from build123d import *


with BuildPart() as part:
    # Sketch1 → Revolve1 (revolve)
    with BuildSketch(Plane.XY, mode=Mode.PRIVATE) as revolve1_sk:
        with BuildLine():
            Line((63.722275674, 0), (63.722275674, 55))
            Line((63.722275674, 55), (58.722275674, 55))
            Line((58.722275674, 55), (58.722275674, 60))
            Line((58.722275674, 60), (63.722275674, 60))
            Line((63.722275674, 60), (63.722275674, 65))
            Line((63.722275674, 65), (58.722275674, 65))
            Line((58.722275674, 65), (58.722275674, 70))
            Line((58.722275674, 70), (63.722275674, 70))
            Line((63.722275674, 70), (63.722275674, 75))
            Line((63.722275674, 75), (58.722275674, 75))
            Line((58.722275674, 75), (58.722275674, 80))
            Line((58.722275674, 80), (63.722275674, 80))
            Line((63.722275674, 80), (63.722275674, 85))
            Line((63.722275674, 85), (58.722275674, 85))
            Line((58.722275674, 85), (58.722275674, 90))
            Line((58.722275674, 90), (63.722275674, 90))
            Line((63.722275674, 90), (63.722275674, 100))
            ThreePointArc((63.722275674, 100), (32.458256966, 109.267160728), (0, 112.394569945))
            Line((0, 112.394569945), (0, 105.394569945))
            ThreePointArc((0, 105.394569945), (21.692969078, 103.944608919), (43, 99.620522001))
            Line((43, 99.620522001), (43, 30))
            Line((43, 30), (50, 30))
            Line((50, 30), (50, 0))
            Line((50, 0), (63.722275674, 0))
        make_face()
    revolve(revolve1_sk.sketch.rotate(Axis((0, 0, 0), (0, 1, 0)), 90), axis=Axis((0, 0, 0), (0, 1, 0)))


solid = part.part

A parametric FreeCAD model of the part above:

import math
import FreeCAD as App
import Part
import Sketcher

V = App.Vector
Q = App.Units.Quantity

doc = App.newDocument("Part")
body = doc.addObject("PartDesign::Body", "Body")

# Sketch on XY plane
sketch1 = body.newObject("Sketcher::SketchObject", "Sketch")
sketch1.AttachmentSupport = (doc.getObject("XY_Plane"), [""])
sketch1.MapMode = "FlatFace"
sketch1.addGeometry(Part.LineSegment(V(64, 0, 0), V(64, 55, 0)), False)
sketch1.addGeometry(Part.LineSegment(V(64, 55, 0), V(59, 55, 0)), False)
sketch1.addGeometry(Part.LineSegment(V(59, 55, 0), V(59, 60, 0)), False)
sketch1.addGeometry(Part.LineSegment(V(59, 60, 0), V(64, 60, 0)), False)
sketch1.addGeometry(Part.LineSegment(V(64, 60, 0), V(64, 65, 0)), False)
sketch1.addGeometry(Part.LineSegment(V(64, 65, 0), V(59, 65, 0)), False)
sketch1.addGeometry(Part.LineSegment(V(59, 65, 0), V(59, 70, 0)), False)
sketch1.addGeometry(Part.LineSegment(V(59, 70, 0), V(64, 70, 0)), False)
sketch1.addGeometry(Part.LineSegment(V(64, 70, 0), V(64, 75, 0)), False)
sketch1.addGeometry(Part.LineSegment(V(64, 75, 0), V(59, 75, 0)), False)
sketch1.addGeometry(Part.LineSegment(V(59, 75, 0), V(59, 80, 0)), False)
sketch1.addGeometry(Part.LineSegment(V(59, 80, 0), V(64, 80, 0)), False)
sketch1.addGeometry(Part.LineSegment(V(64, 80, 0), V(64, 85, 0)), False)
sketch1.addGeometry(Part.LineSegment(V(64, 85, 0), V(59, 85, 0)), False)
sketch1.addGeometry(Part.LineSegment(V(59, 85, 0), V(59, 90, 0)), False)
sketch1.addGeometry(Part.LineSegment(V(59, 90, 0), V(64, 90, 0)), False)
sketch1.addGeometry(Part.LineSegment(V(64, 90, 0), V(64, 100, 0)), False)
sketch1.addGeometry(Part.ArcOfCircle(Part.Circle(V(0, -58, 0), V(0, 0, 1), 170), math.radians(68), math.radians(90)), False)
sketch1.addGeometry(Part.LineSegment(V(0, 112, 0), V(0, 105, 0)), False)
sketch1.addGeometry(Part.ArcOfCircle(Part.Circle(V(0, -58, 0), V(0, 0, 1), 163), math.radians(74.7), math.radians(90)), False)
sketch1.addGeometry(Part.LineSegment(V(43, 100, 0), V(43, 30, 0)), False)
sketch1.addGeometry(Part.LineSegment(V(43, 30, 0), V(50, 30, 0)), False)
sketch1.addGeometry(Part.LineSegment(V(50, 30, 0), V(50, 0, 0)), False)
sketch1.addGeometry(Part.LineSegment(V(50, 0, 0), V(64, 0, 0)), False)
sketch1.addConstraint(Sketcher.Constraint("Coincident", 0, 2, 1, 1))
sketch1.addConstraint(Sketcher.Constraint("Coincident", 1, 2, 2, 1))
sketch1.addConstraint(Sketcher.Constraint("Coincident", 2, 2, 3, 1))
sketch1.addConstraint(Sketcher.Constraint("Coincident", 3, 2, 4, 1))
sketch1.addConstraint(Sketcher.Constraint("Coincident", 4, 2, 5, 1))
sketch1.addConstraint(Sketcher.Constraint("Coincident", 5, 2, 6, 1))
sketch1.addConstraint(Sketcher.Constraint("Coincident", 6, 2, 7, 1))
sketch1.addConstraint(Sketcher.Constraint("Coincident", 7, 2, 8, 1))
sketch1.addConstraint(Sketcher.Constraint("Coincident", 8, 2, 9, 1))
sketch1.addConstraint(Sketcher.Constraint("Coincident", 9, 2, 10, 1))
sketch1.addConstraint(Sketcher.Constraint("Coincident", 10, 2, 11, 1))
sketch1.addConstraint(Sketcher.Constraint("Coincident", 11, 2, 12, 1))
sketch1.addConstraint(Sketcher.Constraint("Coincident", 12, 2, 13, 1))
sketch1.addConstraint(Sketcher.Constraint("Coincident", 13, 2, 14, 1))
sketch1.addConstraint(Sketcher.Constraint("Coincident", 14, 2, 15, 1))
sketch1.addConstraint(Sketcher.Constraint("Coincident", 15, 2, 16, 1))
sketch1.addConstraint(Sketcher.Constraint("Coincident", 16, 2, 17, 1))
sketch1.addConstraint(Sketcher.Constraint("Coincident", 17, 2, 18, 1))
sketch1.addConstraint(Sketcher.Constraint("Coincident", 18, 2, 19, 2))
sketch1.addConstraint(Sketcher.Constraint("Coincident", 19, 1, 20, 1))
sketch1.addConstraint(Sketcher.Constraint("Coincident", 20, 2, 21, 1))
sketch1.addConstraint(Sketcher.Constraint("Coincident", 21, 2, 22, 1))
sketch1.addConstraint(Sketcher.Constraint("Coincident", 22, 2, 23, 1))
sketch1.addConstraint(Sketcher.Constraint("Coincident", 23, 2, 0, 1))
sketch1.addConstraint(Sketcher.Constraint("Vertical", 0))
sketch1.addConstraint(Sketcher.Constraint("Horizontal", 1))
sketch1.addConstraint(Sketcher.Constraint("Vertical", 2))
sketch1.addConstraint(Sketcher.Constraint("Horizontal", 3))
sketch1.addConstraint(Sketcher.Constraint("Vertical", 4))
sketch1.addConstraint(Sketcher.Constraint("Horizontal", 5))
sketch1.addConstraint(Sketcher.Constraint("Vertical", 6))
sketch1.addConstraint(Sketcher.Constraint("Horizontal", 7))
sketch1.addConstraint(Sketcher.Constraint("Vertical", 8))
sketch1.addConstraint(Sketcher.Constraint("Horizontal", 9))
sketch1.addConstraint(Sketcher.Constraint("Vertical", 10))
sketch1.addConstraint(Sketcher.Constraint("Horizontal", 11))
sketch1.addConstraint(Sketcher.Constraint("Vertical", 12))
sketch1.addConstraint(Sketcher.Constraint("Horizontal", 13))
sketch1.addConstraint(Sketcher.Constraint("Vertical", 14))
sketch1.addConstraint(Sketcher.Constraint("Horizontal", 15))
sketch1.addConstraint(Sketcher.Constraint("Vertical", 16))
sketch1.addConstraint(Sketcher.Constraint("Vertical", 18))
sketch1.addConstraint(Sketcher.Constraint("Vertical", 20))
sketch1.addConstraint(Sketcher.Constraint("Horizontal", 21))
sketch1.addConstraint(Sketcher.Constraint("Vertical", 22))
sketch1.addConstraint(Sketcher.Constraint("Horizontal", 23))
sketch1.addConstraint(Sketcher.Constraint("Coincident", 19, 3, 17, 3))
sketch1.addConstraint(Sketcher.Constraint("PointOnObject", 17, 3, -2))
sketch1.addConstraint(Sketcher.Constraint("PointOnObject", 17, 2, -2))
sketch1.addConstraint(Sketcher.Constraint("PointOnObject", 22, 2, -1))
sketch1.addConstraint(Sketcher.Constraint("Vertical", 0, 2, 3, 2))
sketch1.addConstraint(Sketcher.Constraint("Vertical", 2, 2, 5, 2))
sketch1.addConstraint(Sketcher.Constraint("Vertical", 4, 2, 7, 2))
sketch1.addConstraint(Sketcher.Constraint("Vertical", 6, 2, 9, 2))
sketch1.addConstraint(Sketcher.Constraint("Vertical", 8, 2, 11, 2))
sketch1.addConstraint(Sketcher.Constraint("Vertical", 10, 2, 13, 2))
sketch1.addConstraint(Sketcher.Constraint("Vertical", 12, 2, 15, 2))
sketch1.addConstraint(Sketcher.Constraint("Equal", 15, 2))
sketch1.addConstraint(Sketcher.Constraint("Equal", 2, 4))
sketch1.addConstraint(Sketcher.Constraint("Equal", 4, 6))
sketch1.addConstraint(Sketcher.Constraint("Equal", 6, 8))
sketch1.addConstraint(Sketcher.Constraint("Equal", 8, 10))
sketch1.addConstraint(Sketcher.Constraint("Equal", 10, 12))
sketch1.addConstraint(Sketcher.Constraint("Equal", 12, 14))
sketch1.addConstraint(Sketcher.Constraint("Equal", 21, 18))
sketch1.addConstraint(Sketcher.Constraint("Radius", 17, Q("170 mm")))
sketch1.addConstraint(Sketcher.Constraint("Radius", 19, Q("163 mm")))
sketch1.addConstraint(Sketcher.Constraint("DistanceX", 1, 2, 1, 1, Q("5 mm")))
sketch1.addConstraint(Sketcher.Constraint("DistanceY", 0, 1, 0, 2, Q("55 mm")))
sketch1.addConstraint(Sketcher.Constraint("DistanceY", 16, 1, 16, 2, Q("10 mm")))
sketch1.addConstraint(Sketcher.Constraint("DistanceY", 22, 2, 22, 1, Q("30 mm")))
sketch1.addConstraint(Sketcher.Constraint("DistanceX", -1, 1, 19, 1, Q("43 mm")))
sketch1.addConstraint(Sketcher.Constraint("DistanceX", 23, 1, 23, 2, Q("13.722276 mm")))
revolution = body.newObject("PartDesign::Revolution", "Revolution")
revolution.Profile = sketch1
revolution.ReferenceAxis = (sketch1, ["V_Axis"])
revolution.Angle = 360

doc.recompute()
